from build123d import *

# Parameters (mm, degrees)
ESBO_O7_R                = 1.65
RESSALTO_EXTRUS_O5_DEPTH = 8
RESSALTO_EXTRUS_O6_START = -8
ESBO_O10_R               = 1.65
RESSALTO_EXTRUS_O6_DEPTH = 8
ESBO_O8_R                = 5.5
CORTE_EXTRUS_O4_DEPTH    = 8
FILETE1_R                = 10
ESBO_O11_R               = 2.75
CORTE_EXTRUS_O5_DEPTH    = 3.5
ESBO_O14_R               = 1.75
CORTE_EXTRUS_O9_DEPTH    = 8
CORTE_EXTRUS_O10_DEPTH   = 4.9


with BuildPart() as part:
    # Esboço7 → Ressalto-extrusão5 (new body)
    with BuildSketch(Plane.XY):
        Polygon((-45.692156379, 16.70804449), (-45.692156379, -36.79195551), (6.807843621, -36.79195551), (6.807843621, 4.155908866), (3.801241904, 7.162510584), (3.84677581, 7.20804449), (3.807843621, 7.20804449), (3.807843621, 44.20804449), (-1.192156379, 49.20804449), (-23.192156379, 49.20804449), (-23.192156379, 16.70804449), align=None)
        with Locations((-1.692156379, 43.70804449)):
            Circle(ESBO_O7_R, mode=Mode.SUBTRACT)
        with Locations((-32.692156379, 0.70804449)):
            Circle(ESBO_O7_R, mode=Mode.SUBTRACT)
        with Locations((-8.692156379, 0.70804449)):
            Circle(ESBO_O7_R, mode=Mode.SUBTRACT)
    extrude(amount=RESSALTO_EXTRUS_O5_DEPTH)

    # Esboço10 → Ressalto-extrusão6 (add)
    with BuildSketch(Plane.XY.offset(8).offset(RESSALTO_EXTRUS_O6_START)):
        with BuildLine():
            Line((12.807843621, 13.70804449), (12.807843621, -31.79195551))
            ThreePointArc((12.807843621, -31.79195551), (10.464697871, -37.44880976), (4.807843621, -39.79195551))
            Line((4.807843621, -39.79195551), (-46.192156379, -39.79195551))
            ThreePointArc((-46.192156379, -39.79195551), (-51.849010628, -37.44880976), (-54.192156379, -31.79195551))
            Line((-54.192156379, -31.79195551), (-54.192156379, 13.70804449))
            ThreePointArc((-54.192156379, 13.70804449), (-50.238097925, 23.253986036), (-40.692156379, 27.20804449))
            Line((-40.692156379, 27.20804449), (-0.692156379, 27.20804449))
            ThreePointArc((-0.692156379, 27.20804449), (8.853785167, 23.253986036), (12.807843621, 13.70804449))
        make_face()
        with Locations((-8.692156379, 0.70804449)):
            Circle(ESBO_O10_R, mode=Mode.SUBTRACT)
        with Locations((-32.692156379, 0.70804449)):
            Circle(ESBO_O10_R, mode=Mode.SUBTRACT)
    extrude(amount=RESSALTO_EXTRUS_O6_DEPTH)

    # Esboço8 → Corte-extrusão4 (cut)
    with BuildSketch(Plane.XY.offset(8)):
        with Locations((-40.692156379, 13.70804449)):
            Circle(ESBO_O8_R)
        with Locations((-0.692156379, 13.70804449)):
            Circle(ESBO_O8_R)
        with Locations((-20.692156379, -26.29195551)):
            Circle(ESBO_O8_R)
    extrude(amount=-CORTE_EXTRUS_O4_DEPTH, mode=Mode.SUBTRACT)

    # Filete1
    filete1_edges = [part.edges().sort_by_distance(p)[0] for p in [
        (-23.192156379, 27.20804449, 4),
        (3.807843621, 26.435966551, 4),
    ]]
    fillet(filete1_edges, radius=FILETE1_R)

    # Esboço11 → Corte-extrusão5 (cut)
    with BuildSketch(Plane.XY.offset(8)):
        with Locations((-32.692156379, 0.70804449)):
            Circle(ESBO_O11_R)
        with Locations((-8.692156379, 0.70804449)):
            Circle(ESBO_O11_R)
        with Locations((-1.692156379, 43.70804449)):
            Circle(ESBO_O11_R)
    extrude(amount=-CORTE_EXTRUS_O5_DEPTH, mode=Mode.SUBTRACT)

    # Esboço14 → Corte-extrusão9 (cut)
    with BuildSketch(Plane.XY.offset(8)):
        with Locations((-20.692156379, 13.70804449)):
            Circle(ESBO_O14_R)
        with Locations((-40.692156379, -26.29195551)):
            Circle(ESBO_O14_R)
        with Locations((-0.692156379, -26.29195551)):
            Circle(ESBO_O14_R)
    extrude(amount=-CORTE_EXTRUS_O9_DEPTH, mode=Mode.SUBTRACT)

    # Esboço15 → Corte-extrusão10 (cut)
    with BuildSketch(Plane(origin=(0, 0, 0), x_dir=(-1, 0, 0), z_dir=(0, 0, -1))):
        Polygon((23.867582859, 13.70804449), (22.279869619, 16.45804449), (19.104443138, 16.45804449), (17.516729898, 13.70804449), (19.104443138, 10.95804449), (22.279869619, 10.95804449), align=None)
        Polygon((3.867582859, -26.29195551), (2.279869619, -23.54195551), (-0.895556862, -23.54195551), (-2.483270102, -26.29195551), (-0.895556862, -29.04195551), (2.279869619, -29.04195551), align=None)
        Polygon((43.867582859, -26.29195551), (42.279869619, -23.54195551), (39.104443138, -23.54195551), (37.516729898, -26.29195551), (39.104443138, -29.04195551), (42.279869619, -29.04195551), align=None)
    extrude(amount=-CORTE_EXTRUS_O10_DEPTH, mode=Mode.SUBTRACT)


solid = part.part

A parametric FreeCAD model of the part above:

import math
import FreeCAD as App
import Part
import Sketcher

V = App.Vector
Q = App.Units.Quantity


def edges_at(feature, points):
    """Names of the edges that pass closest to the given points."""
    edges = feature.Shape.Edges
    near = lambda p: min(range(len(edges)), key=lambda i: edges[i].distToShape(Part.Vertex(*p))[0])
    return sorted({f"Edge{near(p) + 1}" for p in points})


def add_polygon(sketch, points):
    """Adds a closed chain of lines whose ends are joined by coincident constraints."""
    first, n = sketch.GeometryCount, len(points)
    for a, b in zip(points, points[1:] + points[:1]):
        sketch.addGeometry(Part.LineSegment(App.Vector(*a, 0), App.Vector(*b, 0)), False)
    for i in range(n):
        sketch.addConstraint(Sketcher.Constraint("Coincident", first + i, 2, first + (i + 1) % n, 1))

doc = App.newDocument("Part")
body = doc.addObject("PartDesign::Body", "Body")

# Sketch on XY plane
sketch1 = body.newObject("Sketcher::SketchObject", "Sketch")
sketch1.AttachmentSupport = (doc.getObject("XY_Plane"), [""])
sketch1.MapMode = "FlatFace"
add_polygon(sketch1, [(-45.692156, 16.708044), (-45.692156, -36.791956), (6.807844, -36.791956), (6.807844, 4.155909), (3.801242, 7.162511), (3.846776, 7.208044), (3.807844, 7.208044), (3.807844, 44.208044), (-1.192156, 49.208044), (-23.192156, 49.208044), (-23.192156, 16.708044)])  # lines 0-10
sketch1.addGeometry(Part.Circle(V(-32.692156, 0.708044, 0), V(0, 0, 1), 1.65), False)  # 11
sketch1.addGeometry(Part.Circle(V(-8.692156, 0.708044, 0), V(0, 0, 1), 1.65), False)  # 12
sketch1.addGeometry(Part.Circle(V(-1.692156, 43.708044, 0), V(0, 0, 1), 1.65), False)  # 13
sketch1.addConstraint([
    Sketcher.Constraint("Vertical", 0),
    Sketcher.Constraint("Horizontal", 1),
    Sketcher.Constraint("Vertical", 2),
    Sketcher.Constraint("Horizontal", 5),
    Sketcher.Constraint("Vertical", 6),
    Sketcher.Constraint("Horizontal", 8),
    Sketcher.Constraint("Vertical", 9),
    Sketcher.Constraint("Horizontal", 10),
    Sketcher.Constraint("Equal", 11, 12),
    Sketcher.Constraint("Equal", 12, 13),
    Sketcher.Constraint("Perpendicular", 3, 4),
    Sketcher.Constraint("Perpendicular", 4, 7),
    Sketcher.Constraint("Horizontal", 11, 3, 12, 3),
    Sketcher.Constraint("Diameter", 11, 3.3),
    Sketcher.Constraint("DistanceX", 8, 2, 8, 1, 22.0),
    Sketcher.Constraint("DistanceY", 6, 1, 6, 2, 37.0),
    Sketcher.Constraint("Angle", 3, Q("135 deg")),
    Sketcher.Constraint("DistanceX", 1, 1, 1, 2, 52.5),
    Sketcher.Constraint("DistanceX", 10, 2, 10, 1, 22.5),
    Sketcher.Constraint("DistanceY", 0, 2, 0, 1, 53.5),
    Sketcher.Constraint("DistanceY", 9, 2, 9, 1, 32.5),
    Sketcher.Constraint("DistanceX", 11, 3, 12, 3, 24.0),
    Sketcher.Constraint("DistanceX", 12, 3, 13, 3, 7.0),
    Sketcher.Constraint("DistanceY", 12, 3, 13, 3, 43.0),
    Sketcher.Constraint("DistanceX", 0, 2, 11, 3, 13.0),
    Sketcher.Constraint("DistanceX", 5, 2, 2, 2, 3.0),
    Sketcher.Constraint("DistanceY", 11, 3, 9, 2, 16.0),
    Sketcher.Constraint("DistanceX", 3, 2, 2, 2, 3.006602),
    Sketcher.Constraint("DistanceX", 5, 2, 5, 1, 0.038932),
    Sketcher.Constraint("DistanceY", -1, 1, 2, 2, 4.155909),
    Sketcher.Constraint("DistanceX", -1, 1, 3, 2, 3.801242),
])
pad1 = body.newObject("PartDesign::Pad", "Pad")
pad1.Profile = sketch1
pad1.Length = 8

# Sketch on XY plane
sketch2 = body.newObject("Sketcher::SketchObject", "Sketch001")
sketch2.AttachmentSupport = (doc.getObject("XY_Plane"), [""])
sketch2.MapMode = "FlatFace"
sketch2.addGeometry([
    Part.LineSegment(V(12.807844, -31.791956, 0), V(12.807844, 13.708044, 0)),  # 0
    Part.ArcOfCircle(Part.Circle(V(-0.692156, 13.708044, 0), V(0, 0, 1), 13.5), math.radians(0), math.radians(90)),  # 1
    Part.LineSegment(V(-0.692156, 27.208044, 0), V(-40.692156, 27.208044, 0)),  # 2
    Part.ArcOfCircle(Part.Circle(V(-40.692156, 13.708044, 0), V(0, 0, 1), 13.5), math.radians(90), math.radians(180)),  # 3
    Part.LineSegment(V(-54.192156, 13.708044, 0), V(-54.192156, -31.791956, 0)),  # 4
    Part.ArcOfCircle(Part.Circle(V(-46.192156, -31.791956, 0), V(0, 0, 1), 8), math.radians(180), math.radians(270)),  # 5
    Part.LineSegment(V(-46.192156, -39.791956, 0), V(4.807844, -39.791956, 0)),  # 6
    Part.ArcOfCircle(Part.Circle(V(4.807844, -31.791956, 0), V(0, 0, 1), 8), math.radians(-90), math.radians(0)),  # 7
    Part.Circle(V(-8.692156, 0.708044, 0), V(0, 0, 1), 1.65),  # 8
    Part.Circle(V(-32.692156, 0.708044, 0), V(0, 0, 1), 1.65),  # 9
], False)
sketch2.addConstraint([
    Sketcher.Constraint("Tangent", 0, 2, 1, 1),
    Sketcher.Constraint("Tangent", 1, 2, 2, 1),
    Sketcher.Constraint("Tangent", 2, 2, 3, 1),
    Sketcher.Constraint("Tangent", 3, 2, 4, 1),
    Sketcher.Constraint("Tangent", 4, 2, 5, 1),
    Sketcher.Constraint("Tangent", 5, 2, 6, 1),
    Sketcher.Constraint("Tangent", 6, 2, 7, 1),
    Sketcher.Constraint("Tangent", 7, 2, 0, 1),
    Sketcher.Constraint("Vertical", 0),
    Sketcher.Constraint("Horizontal", 2),
    Sketcher.Constraint("Vertical", 4),
    Sketcher.Constraint("Horizontal", 6),
    Sketcher.Constraint("Equal", 1, 3),
    Sketcher.Constraint("Equal", 5, 7),
    Sketcher.Constraint("Equal", 8, 9),
    Sketcher.Constraint("Horizontal", 8, 3, 9, 3),
    Sketcher.Constraint("Radius", 5, 8.0),
    Sketcher.Constraint("Diameter", 8, 3.3),
    Sketcher.Constraint("Radius", 1, 13.5),
    Sketcher.Constraint("DistanceX", 2, 2, 2, 1, 40.0),
    Sketcher.Constraint("DistanceY", 0, 1, 0, 2, 45.5),
    Sketcher.Constraint("DistanceX", 8, 3, 1, 3, 8.0),
    Sketcher.Constraint("DistanceY", 8, 3, 1, 3, 13.0),
    Sketcher.Constraint("DistanceX", 3, 3, 9, 3, 8.0),
    Sketcher.Constraint("DistanceX", 1, 3, -1, 1, 0.692156),
    Sketcher.Constraint("DistanceY", -1, 1, 1, 3, 13.708044),
])
pad2 = body.newObject("PartDesign::Pad", "Pad001")
pad2.Profile = sketch2
pad2.Length = 8

# Sketch on XY plane
sketch3 = body.newObject("Sketcher::SketchObject", "Sketch002")
sketch3.AttachmentSupport = (doc.getObject("XY_Plane"), [""])
sketch3.MapMode = "FlatFace"
sketch3.AttachmentOffset = App.Placement(V(0, 0, 8), App.Rotation())
sketch3.addGeometry([
    Part.Circle(V(-40.692156, 13.708044, 0), V(0, 0, 1), 5.5),
    Part.Circle(V(-0.692156, 13.708044, 0), V(0, 0, 1), 5.5),
    Part.Circle(V(-20.692156, -26.291956, 0), V(0, 0, 1), 5.5),
], False)
sketch3.addConstraint([
    Sketcher.Constraint("Equal", 0, 1),
    Sketcher.Constraint("Equal", 1, 2),
    Sketcher.Constraint("Horizontal", 0, 3, 1, 3),
    Sketcher.Constraint("Diameter", 0, 11.0),
    Sketcher.Constraint("DistanceX", 0, 3, 1, 3, 40.0),
    Sketcher.Constraint("DistanceX", 0, 3, 2, 3, 20.0),
    Sketcher.Constraint("DistanceY", 2, 3, 0, 3, 40.0),
    Sketcher.Constraint("DistanceX", 0, 3, -1, 1, 40.692156),
    Sketcher.Constraint("DistanceY", -1, 1, 0, 3, 13.708044),
])
pocket1 = body.newObject("PartDesign::Pocket", "Pocket")
pocket1.Profile = sketch3
pocket1.Length = 8
doc.recompute()

fillet = body.newObject("PartDesign::Fillet", "Fillet")
fillet.Base = (pocket1, edges_at(pocket1, [(-23.192, 27.208, 4), (3.808, 26.436, 4)]))
fillet.Radius = 10

# Sketch on XY plane
sketch4 = body.newObject("Sketcher::SketchObject", "Sketch003")
sketch4.AttachmentSupport = (doc.getObject("XY_Plane"), [""])
sketch4.MapMode = "FlatFace"
sketch4.AttachmentOffset = App.Placement(V(0, 0, 8), App.Rotation())
sketch4.addGeometry([
    Part.Circle(V(-32.692156, 0.708044, 0), V(0, 0, 1), 2.75),
    Part.Circle(V(-8.692156, 0.708044, 0), V(0, 0, 1), 2.75),
    Part.Circle(V(-1.692156, 43.708044, 0), V(0, 0, 1), 2.75),
], False)
sketch4.addConstraint([
    Sketcher.Constraint("Equal", 0, 1),
    Sketcher.Constraint("Equal", 1, 2),
    Sketcher.Constraint("Horizontal", 0, 3, 1, 3),
    Sketcher.Constraint("Diameter", 0, 5.5),
    Sketcher.Constraint("DistanceX", 0, 3, 1, 3, 24.0),
    Sketcher.Constraint("DistanceX", 1, 3, 2, 3, 7.0),
    Sketcher.Constraint("DistanceY", 1, 3, 2, 3, 43.0),
    Sketcher.Constraint("DistanceX", 0, 3, -1, 1, 32.692156),
    Sketcher.Constraint("DistanceY", -1, 1, 0, 3, 0.708044),
])
pocket2 = body.newObject("PartDesign::Pocket", "Pocket001")
pocket2.Profile = sketch4
pocket2.Length = 3.5

# Sketch on XY plane
sketch5 = body.newObject("Sketcher::SketchObject", "Sketch004")
sketch5.AttachmentSupport = (doc.getObject("XY_Plane"), [""])
sketch5.MapMode = "FlatFace"
sketch5.AttachmentOffset = App.Placement(V(0, 0, 8), App.Rotation())
sketch5.addGeometry([
    Part.Circle(V(-20.692156, 13.708044, 0), V(0, 0, 1), 1.75),
    Part.Circle(V(-40.692156, -26.291956, 0), V(0, 0, 1), 1.75),
    Part.Circle(V(-0.692156, -26.291956, 0), V(0, 0, 1), 1.75),
], False)
sketch5.addConstraint([
    Sketcher.Constraint("Equal", 0, 1),
    Sketcher.Constraint("Equal", 1, 2),
    Sketcher.Constraint("Horizontal", 1, 3, 2, 3),
    Sketcher.Constraint("Diameter", 0, 3.5),
    Sketcher.Constraint("DistanceX", 1, 3, 0, 3, 20.0),
    Sketcher.Constraint("DistanceY", 1, 3, 0, 3, 40.0),
    Sketcher.Constraint("DistanceX", 1, 3, 2, 3, 40.0),
    Sketcher.Constraint("DistanceX", 0, 3, -1, 1, 20.692156),
    Sketcher.Constraint("DistanceY", -1, 1, 0, 3, 13.708044),
])
pocket3 = body.newObject("PartDesign::Pocket", "Pocket002")
pocket3.Profile = sketch5
pocket3.Length = 8

# Sketch on XY plane
sketch6 = body.newObject("Sketcher::SketchObject", "Sketch005")
sketch6.AttachmentSupport = (doc.getObject("XY_Plane"), [""])
sketch6.MapMode = "FlatFace"
add_polygon(sketch6, [(-23.867583, 13.708044), (-22.27987, 16.458044), (-19.104443, 16.458044), (-17.51673, 13.708044), (-19.104443, 10.958044), (-22.27987, 10.958044)])  # lines 0-5
add_polygon(sketch6, [(-3.867583, -26.291956), (-2.27987, -23.541956), (0.895557, -23.541956), (2.48327, -26.291956), (0.895557, -29.041956), (-2.27987, -29.041956)])  # lines 6-11
add_polygon(sketch6, [(-43.867583, -26.291956), (-42.27987, -23.541956), (-39.104443, -23.541956), (-37.51673, -26.291956), (-39.104443, -29.041956), (-42.27987, -29.041956)])  # lines 12-17
sketch6.addConstraint([
    Sketcher.Constraint("Horizontal", 1),
    Sketcher.Constraint("Horizontal", 4),
    Sketcher.Constraint("Horizontal", 7),
    Sketcher.Constraint("Horizontal", 10),
    Sketcher.Constraint("Horizontal", 13),
    Sketcher.Constraint("Horizontal", 16),
    Sketcher.Constraint("Parallel", 0, 3),
    Sketcher.Constraint("Parallel", 2, 5),
    Sketcher.Constraint("Parallel", 3, 6),
    Sketcher.Constraint("Parallel", 5, 8),
    Sketcher.Constraint("Parallel", 6, 9),
    Sketcher.Constraint("Parallel", 8, 11),
    Sketcher.Constraint("Parallel", 9, 12),
    Sketcher.Constraint("Parallel", 11, 14),
    Sketcher.Constraint("Parallel", 12, 15),
    Sketcher.Constraint("Parallel", 14, 17),
    Sketcher.Constraint("Horizontal", 2, 2, 5, 2),
    Sketcher.Constraint("Horizontal", 8, 2, 11, 2),
    Sketcher.Constraint("Horizontal", 7, 2, 12, 2),
    Sketcher.Constraint("Horizontal", 11, 2, 14, 2),
    Sketcher.Constraint("Horizontal", 10, 2, 15, 2),
    Sketcher.Constraint("Horizontal", 14, 2, 17, 2),
    Sketcher.Constraint("Vertical", 1, 2, 3, 2),
    Sketcher.Constraint("Vertical", 0, 2, 4, 2),
    Sketcher.Constraint("Vertical", 7, 2, 9, 2),
    Sketcher.Constraint("Equal", 4, 7),
    Sketcher.Constraint("Equal", 10, 13),
    Sketcher.Constraint("Equal", 5, 6),
    Sketcher.Constraint("Angle", 0, Q("60 deg")),
    Sketcher.Constraint("DistanceX", 4, 2, 6, 2, 20.0),
    Sketcher.Constraint("DistanceY", 6, 2, 1, 2, 40.0),
    Sketcher.Constraint("DistanceX", 12, 2, 4, 2, 20.0),
    Sketcher.Constraint("DistanceY", 3, 2, 1, 2, 5.5),
    Sketcher.Constraint("DistanceX", 1, 1, 1, 2, 3.175426),
    Sketcher.Constraint("DistanceX", 0, 2, -1, 1, 22.27987),
    Sketcher.Constraint("DistanceY", -1, 1, 0, 2, 16.458044),
])
pocket4 = body.newObject("PartDesign::Pocket", "Pocket003")
pocket4.Profile = sketch6
pocket4.Length = 4.9
pocket4.Reversed = True

doc.recompute()
